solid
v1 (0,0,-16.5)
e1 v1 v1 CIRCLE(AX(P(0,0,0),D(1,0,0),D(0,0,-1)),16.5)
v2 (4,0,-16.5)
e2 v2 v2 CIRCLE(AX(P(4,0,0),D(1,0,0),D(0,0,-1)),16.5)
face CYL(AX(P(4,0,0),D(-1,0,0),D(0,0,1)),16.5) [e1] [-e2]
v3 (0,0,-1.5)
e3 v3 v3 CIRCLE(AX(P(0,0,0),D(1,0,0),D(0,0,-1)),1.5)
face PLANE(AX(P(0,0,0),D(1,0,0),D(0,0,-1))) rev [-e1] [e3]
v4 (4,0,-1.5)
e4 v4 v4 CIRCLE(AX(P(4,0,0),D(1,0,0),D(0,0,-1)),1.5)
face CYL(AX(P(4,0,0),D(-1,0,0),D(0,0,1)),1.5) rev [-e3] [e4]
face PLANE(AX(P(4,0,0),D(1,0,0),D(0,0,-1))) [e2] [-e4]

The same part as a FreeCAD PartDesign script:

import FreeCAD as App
import Part
import Sketcher
from FreeCAD import Vector

doc = App.newDocument("Part")
body = doc.addObject("PartDesign::Body", "Body")

# Sketch on YZ plane
sketch1 = body.newObject("Sketcher::SketchObject", "Sketch")
sketch1.AttachmentSupport = (doc.getObject("YZ_Plane"), [""])
sketch1.MapMode = "FlatFace"
sketch1.addGeometry([
    Part.Circle(Vector(0, 0, 0), Vector(0, 0, 1), 16.5),
    Part.Circle(Vector(0, 0, 0), Vector(0, 0, 1), 1.5),
], False)
sketch1.addConstraint([
    Sketcher.Constraint("Coincident", 0, 3, -1, 1),
    Sketcher.Constraint("Coincident", 1, 3, -1, 1),
    Sketcher.Constraint("Diameter", 0, 33.0),
    Sketcher.Constraint("Diameter", 1, 3.0),
])
pad1 = body.newObject("PartDesign::Pad", "Pad")
pad1.Profile = sketch1
pad1.Length = 4

doc.recompute()
